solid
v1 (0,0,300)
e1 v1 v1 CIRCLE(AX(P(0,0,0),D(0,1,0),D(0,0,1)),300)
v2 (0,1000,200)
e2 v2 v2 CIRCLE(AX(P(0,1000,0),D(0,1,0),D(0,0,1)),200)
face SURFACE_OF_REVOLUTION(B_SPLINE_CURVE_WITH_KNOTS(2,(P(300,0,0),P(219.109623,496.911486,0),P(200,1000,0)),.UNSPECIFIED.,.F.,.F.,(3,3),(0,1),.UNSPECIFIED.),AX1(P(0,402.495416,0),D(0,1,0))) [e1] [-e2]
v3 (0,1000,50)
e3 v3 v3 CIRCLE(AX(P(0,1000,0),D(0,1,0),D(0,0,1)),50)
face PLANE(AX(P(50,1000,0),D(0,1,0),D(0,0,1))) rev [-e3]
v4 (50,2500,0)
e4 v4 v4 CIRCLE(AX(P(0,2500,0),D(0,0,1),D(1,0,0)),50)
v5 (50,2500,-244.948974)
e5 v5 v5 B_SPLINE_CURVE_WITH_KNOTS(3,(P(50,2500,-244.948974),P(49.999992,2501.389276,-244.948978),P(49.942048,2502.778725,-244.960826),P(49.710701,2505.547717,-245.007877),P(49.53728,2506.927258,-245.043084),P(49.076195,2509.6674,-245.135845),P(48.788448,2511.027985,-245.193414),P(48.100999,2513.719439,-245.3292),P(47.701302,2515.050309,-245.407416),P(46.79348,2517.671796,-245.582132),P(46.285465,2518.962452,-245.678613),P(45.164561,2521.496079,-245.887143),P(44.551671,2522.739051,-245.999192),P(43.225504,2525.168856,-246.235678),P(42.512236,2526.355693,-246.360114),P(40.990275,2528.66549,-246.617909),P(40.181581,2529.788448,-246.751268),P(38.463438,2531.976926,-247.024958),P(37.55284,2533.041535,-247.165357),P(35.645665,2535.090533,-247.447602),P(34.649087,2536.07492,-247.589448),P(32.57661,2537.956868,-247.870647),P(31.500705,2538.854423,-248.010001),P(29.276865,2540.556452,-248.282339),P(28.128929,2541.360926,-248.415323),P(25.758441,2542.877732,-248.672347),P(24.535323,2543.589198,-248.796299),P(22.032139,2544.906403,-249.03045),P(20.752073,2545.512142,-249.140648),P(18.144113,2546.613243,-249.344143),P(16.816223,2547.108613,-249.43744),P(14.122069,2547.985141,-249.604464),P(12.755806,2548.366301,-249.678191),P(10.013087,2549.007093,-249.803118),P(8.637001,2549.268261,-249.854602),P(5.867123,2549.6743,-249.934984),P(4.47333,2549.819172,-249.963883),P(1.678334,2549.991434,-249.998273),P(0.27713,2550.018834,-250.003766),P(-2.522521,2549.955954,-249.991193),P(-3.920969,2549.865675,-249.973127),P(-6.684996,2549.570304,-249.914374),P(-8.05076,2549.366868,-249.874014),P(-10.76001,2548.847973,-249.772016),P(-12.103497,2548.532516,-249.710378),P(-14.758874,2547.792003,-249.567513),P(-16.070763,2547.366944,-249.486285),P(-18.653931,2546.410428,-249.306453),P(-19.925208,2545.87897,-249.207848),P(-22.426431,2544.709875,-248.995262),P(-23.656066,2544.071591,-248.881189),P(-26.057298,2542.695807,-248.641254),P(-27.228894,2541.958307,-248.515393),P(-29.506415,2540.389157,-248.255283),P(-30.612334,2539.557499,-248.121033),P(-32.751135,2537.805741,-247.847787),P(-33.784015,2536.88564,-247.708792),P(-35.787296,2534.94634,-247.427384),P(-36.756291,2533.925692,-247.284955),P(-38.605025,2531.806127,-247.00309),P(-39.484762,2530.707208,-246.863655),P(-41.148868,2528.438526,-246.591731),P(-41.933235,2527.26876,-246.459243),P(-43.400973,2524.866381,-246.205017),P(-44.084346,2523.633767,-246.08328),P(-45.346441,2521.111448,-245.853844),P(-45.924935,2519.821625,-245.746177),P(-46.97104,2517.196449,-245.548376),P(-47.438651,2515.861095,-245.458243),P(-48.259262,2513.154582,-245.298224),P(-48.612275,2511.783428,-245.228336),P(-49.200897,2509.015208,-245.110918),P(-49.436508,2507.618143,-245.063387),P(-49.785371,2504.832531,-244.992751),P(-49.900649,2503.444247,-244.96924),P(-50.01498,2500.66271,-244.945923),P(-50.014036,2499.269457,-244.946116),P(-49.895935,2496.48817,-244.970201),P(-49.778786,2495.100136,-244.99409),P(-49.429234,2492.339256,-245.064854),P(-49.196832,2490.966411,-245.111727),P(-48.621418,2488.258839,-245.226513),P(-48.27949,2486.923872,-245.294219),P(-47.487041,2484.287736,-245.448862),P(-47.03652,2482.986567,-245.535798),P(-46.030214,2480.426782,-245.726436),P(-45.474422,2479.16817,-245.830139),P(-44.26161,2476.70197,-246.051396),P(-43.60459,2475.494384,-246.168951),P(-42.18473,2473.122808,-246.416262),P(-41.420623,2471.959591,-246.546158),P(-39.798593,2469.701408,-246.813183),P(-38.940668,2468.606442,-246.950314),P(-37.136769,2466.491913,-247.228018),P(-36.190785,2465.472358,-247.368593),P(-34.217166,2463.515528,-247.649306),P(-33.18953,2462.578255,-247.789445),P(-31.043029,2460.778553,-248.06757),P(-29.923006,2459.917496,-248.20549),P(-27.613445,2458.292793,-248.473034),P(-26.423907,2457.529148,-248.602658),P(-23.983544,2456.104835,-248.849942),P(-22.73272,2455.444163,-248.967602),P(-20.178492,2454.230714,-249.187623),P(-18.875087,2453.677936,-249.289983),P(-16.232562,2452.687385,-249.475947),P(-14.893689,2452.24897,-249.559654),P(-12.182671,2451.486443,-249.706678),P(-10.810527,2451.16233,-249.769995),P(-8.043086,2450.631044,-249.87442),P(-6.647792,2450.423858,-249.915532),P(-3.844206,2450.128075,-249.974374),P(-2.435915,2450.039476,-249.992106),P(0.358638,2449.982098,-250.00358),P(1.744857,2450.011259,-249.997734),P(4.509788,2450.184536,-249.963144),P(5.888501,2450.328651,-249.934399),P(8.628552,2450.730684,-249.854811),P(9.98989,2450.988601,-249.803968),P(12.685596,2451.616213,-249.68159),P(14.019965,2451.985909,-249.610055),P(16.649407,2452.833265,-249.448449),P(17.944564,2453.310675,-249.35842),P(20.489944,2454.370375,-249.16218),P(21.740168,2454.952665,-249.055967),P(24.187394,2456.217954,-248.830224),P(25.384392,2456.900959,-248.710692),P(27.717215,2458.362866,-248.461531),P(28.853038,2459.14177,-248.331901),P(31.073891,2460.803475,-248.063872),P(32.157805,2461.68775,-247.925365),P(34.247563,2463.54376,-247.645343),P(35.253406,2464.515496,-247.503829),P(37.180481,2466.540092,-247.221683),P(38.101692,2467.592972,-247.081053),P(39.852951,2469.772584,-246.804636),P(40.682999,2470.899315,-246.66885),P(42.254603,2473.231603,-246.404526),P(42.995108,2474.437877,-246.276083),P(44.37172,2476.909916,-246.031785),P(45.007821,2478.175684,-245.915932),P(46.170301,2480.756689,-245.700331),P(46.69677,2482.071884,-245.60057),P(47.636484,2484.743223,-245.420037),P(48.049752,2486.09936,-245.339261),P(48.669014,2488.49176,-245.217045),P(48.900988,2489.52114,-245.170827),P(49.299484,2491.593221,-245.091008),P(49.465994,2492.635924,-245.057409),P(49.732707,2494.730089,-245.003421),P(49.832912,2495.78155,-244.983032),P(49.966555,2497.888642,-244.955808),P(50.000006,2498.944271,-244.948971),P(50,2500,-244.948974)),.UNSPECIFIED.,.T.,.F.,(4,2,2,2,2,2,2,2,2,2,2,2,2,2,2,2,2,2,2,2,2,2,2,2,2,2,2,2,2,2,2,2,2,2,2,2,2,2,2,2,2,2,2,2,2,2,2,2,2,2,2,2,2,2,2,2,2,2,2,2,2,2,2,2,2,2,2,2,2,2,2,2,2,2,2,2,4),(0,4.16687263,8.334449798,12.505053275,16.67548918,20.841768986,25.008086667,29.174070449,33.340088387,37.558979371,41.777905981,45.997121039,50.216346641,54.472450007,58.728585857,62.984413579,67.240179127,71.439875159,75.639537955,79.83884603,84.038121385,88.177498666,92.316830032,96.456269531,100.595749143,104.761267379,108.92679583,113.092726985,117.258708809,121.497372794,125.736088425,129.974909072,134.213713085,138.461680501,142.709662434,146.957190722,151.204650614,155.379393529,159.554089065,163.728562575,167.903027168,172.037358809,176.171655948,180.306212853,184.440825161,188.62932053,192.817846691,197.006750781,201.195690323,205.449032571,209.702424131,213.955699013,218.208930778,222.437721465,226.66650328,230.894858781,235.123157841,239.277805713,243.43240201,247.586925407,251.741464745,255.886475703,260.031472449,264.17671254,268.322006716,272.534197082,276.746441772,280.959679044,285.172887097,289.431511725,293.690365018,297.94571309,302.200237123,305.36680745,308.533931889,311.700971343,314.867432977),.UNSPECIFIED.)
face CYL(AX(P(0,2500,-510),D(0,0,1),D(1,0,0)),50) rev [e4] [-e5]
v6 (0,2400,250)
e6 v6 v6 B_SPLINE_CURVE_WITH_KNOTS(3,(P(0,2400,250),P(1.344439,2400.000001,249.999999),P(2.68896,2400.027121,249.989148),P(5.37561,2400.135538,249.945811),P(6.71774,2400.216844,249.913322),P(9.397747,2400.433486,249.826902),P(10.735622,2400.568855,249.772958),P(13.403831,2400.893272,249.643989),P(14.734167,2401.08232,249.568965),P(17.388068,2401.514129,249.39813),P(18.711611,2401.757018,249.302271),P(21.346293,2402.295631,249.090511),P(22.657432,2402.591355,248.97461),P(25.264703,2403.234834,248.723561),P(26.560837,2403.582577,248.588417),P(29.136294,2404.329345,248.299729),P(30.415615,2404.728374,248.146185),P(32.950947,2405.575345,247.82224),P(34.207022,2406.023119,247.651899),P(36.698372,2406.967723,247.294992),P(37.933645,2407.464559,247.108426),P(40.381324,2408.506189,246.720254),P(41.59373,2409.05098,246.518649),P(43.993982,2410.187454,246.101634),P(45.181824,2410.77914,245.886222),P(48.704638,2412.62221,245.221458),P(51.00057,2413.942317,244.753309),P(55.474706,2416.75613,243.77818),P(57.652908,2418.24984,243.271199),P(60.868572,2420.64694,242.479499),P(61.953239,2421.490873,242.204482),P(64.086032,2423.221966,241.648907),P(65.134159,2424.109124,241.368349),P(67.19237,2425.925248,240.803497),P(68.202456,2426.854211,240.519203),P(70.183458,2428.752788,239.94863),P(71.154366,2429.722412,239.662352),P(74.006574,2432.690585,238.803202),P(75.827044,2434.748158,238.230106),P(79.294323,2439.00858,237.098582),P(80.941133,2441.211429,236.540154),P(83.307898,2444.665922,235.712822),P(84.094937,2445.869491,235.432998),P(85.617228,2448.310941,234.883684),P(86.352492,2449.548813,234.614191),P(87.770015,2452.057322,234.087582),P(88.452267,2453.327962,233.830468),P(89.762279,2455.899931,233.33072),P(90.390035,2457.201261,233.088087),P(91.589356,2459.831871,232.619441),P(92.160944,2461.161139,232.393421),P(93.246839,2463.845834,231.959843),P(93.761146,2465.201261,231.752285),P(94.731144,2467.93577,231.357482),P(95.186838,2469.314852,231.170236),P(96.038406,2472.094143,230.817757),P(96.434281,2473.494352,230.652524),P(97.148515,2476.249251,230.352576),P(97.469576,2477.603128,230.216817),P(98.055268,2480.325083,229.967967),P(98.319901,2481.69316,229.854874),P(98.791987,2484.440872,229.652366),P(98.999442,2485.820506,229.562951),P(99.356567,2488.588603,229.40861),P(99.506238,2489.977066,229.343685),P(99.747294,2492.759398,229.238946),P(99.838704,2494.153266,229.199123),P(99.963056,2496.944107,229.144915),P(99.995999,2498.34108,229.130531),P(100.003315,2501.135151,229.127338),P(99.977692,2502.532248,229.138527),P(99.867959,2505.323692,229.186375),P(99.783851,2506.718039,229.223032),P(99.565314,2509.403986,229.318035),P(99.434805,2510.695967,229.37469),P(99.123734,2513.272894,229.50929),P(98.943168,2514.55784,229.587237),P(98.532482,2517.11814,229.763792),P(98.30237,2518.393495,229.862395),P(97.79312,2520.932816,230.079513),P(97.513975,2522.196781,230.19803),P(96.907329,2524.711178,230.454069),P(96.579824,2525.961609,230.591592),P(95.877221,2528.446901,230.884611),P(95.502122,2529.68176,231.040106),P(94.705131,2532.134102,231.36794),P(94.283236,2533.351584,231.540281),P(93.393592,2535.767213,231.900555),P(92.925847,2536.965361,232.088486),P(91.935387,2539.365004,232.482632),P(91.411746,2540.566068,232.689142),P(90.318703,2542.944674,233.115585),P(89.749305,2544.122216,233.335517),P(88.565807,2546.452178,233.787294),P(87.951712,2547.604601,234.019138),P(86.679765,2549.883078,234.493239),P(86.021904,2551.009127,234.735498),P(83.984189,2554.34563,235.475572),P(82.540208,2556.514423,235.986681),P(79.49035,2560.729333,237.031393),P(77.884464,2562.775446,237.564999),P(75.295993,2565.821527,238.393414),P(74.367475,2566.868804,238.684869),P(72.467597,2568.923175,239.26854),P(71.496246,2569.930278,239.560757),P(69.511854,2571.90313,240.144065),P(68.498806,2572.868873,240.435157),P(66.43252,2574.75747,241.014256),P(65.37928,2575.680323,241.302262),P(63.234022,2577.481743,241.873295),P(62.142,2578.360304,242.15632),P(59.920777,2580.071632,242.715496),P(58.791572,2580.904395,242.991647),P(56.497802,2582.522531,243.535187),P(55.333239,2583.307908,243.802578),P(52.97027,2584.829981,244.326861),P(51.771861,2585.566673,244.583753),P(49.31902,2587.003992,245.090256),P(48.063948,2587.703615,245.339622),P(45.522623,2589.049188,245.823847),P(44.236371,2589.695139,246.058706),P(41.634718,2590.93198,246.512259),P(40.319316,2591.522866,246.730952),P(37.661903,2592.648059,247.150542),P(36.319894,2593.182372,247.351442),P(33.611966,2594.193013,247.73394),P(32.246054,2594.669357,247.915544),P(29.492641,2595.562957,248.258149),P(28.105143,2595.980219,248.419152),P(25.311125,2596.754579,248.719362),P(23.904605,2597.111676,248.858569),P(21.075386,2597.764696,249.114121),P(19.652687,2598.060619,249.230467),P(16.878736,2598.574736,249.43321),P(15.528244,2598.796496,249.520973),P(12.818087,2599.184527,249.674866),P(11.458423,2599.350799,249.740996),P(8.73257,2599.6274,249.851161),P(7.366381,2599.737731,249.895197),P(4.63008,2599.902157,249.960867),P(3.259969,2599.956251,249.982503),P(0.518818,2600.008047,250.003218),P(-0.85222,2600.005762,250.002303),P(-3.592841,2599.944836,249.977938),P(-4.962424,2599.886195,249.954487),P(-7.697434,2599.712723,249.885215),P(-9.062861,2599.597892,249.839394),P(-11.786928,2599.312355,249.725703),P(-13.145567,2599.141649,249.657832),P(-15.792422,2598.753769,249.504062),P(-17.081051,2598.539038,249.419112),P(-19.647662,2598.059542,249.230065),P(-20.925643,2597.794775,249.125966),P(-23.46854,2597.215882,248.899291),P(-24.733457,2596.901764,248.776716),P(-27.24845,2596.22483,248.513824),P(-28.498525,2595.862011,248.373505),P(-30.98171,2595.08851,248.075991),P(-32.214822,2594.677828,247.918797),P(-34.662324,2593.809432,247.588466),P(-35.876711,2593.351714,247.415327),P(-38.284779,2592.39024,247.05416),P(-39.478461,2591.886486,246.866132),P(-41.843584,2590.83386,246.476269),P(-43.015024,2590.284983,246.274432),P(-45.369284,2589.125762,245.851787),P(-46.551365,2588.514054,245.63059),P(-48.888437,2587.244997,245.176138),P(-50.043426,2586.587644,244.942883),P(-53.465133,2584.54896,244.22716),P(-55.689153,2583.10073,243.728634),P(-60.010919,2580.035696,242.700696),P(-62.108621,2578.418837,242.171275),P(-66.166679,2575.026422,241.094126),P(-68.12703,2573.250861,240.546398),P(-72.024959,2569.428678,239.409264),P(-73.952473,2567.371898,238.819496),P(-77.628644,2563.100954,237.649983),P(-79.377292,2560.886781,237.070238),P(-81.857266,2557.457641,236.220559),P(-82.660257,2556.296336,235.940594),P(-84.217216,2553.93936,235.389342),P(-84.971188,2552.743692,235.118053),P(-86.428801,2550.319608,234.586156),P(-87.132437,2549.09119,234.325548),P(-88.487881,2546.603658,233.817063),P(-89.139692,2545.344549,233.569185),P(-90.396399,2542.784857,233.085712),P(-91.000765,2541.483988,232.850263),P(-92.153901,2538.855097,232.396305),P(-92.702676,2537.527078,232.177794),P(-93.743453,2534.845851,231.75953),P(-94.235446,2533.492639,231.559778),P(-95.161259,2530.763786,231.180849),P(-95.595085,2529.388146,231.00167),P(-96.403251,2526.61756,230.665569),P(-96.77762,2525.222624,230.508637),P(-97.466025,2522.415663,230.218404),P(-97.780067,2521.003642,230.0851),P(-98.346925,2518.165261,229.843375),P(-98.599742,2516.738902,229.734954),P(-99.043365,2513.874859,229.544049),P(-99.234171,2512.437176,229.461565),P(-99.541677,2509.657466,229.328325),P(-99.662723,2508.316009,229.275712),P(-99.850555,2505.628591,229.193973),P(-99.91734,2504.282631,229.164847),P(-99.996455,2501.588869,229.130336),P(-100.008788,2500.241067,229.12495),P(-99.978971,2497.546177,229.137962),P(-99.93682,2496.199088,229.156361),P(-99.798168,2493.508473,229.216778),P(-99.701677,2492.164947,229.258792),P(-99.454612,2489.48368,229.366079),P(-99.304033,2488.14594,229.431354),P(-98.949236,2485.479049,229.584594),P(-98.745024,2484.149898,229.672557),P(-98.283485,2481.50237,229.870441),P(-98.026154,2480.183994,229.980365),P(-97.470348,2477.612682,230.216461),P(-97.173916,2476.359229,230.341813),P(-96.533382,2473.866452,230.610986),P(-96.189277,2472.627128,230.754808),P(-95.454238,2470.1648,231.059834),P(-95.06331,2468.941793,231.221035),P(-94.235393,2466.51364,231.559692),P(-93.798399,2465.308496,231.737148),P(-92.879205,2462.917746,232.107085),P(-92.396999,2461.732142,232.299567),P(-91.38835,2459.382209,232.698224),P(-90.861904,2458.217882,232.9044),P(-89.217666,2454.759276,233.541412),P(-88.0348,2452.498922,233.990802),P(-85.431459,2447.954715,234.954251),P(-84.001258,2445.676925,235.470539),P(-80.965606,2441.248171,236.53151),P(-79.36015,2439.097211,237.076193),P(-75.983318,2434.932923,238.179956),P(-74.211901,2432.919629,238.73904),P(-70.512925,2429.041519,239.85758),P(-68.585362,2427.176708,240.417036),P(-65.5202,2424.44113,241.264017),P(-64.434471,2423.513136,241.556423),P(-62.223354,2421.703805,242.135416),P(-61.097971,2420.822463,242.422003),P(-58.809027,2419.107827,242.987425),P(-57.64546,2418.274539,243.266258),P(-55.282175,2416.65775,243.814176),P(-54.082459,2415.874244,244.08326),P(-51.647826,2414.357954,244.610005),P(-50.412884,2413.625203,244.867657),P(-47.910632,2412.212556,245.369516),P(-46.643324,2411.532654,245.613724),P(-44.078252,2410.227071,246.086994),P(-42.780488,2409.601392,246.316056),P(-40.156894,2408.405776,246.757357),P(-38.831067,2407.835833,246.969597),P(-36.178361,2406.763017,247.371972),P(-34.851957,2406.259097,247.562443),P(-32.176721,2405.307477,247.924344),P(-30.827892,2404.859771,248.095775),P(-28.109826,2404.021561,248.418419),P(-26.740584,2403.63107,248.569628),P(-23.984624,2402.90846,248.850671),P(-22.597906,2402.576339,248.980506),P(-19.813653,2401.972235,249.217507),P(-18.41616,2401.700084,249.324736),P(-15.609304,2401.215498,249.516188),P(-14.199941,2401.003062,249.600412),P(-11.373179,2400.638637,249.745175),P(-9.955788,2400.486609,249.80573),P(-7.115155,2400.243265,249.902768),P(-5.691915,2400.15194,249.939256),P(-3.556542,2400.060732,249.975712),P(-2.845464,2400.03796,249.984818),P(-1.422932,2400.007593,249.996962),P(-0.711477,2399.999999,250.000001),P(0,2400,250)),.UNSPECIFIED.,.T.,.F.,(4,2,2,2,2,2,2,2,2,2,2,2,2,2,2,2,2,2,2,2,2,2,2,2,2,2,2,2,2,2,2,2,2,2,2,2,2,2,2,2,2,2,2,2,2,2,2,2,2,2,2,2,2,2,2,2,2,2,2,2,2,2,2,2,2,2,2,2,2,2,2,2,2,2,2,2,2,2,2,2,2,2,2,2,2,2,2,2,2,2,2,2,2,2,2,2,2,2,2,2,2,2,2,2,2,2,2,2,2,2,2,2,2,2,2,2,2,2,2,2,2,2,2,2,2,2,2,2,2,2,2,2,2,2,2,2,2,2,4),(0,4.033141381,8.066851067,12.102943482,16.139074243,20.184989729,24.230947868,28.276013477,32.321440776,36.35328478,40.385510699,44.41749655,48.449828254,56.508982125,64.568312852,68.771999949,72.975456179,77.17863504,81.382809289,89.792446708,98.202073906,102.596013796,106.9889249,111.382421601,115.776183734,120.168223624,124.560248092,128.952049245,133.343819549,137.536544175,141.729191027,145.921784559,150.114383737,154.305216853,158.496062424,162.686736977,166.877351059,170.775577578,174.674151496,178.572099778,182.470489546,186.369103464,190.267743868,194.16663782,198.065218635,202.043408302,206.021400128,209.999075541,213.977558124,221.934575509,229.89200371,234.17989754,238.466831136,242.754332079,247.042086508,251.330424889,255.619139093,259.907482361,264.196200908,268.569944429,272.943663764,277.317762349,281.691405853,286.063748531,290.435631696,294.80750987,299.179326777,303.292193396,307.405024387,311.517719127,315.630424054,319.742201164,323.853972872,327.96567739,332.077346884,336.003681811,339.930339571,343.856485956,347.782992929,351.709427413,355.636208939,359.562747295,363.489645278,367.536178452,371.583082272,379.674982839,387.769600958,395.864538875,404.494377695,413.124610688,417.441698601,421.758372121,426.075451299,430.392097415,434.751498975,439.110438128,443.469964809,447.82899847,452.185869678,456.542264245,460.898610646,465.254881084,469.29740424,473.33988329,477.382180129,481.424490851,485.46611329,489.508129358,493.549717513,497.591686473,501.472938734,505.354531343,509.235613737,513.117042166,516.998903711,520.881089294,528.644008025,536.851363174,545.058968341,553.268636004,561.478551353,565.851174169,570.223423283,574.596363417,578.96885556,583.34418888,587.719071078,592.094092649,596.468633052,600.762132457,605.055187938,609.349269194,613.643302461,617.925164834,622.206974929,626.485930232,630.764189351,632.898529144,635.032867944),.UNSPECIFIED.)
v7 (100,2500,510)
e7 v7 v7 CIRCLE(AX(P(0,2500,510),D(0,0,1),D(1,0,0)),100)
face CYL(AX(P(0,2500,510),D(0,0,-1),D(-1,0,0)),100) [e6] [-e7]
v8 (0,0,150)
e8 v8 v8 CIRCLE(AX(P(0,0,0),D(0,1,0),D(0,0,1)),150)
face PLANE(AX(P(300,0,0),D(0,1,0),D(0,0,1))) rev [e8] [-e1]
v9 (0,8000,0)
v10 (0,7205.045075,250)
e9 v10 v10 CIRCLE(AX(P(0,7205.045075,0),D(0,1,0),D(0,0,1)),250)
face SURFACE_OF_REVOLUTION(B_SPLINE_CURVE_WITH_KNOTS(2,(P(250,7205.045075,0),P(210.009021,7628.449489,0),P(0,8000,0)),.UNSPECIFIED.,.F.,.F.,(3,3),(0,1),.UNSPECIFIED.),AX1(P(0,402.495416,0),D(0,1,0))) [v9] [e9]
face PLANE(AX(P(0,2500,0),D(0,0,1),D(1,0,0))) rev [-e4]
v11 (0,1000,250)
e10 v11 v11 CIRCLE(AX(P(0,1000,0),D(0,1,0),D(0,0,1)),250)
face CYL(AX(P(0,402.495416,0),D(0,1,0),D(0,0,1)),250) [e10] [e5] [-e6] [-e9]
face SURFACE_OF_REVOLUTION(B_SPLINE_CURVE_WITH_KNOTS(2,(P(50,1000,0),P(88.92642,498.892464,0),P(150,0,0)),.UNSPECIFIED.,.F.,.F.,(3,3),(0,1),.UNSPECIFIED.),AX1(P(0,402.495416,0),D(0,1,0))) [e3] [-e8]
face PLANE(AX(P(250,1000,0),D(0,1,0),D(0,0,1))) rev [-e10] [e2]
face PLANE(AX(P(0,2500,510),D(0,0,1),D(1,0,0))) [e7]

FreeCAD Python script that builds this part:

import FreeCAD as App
import Part
import Sketcher

doc = App.newDocument("Part")
body = doc.addObject("PartDesign::Body", "Body")

# Sketch on XY plane
sketch1 = body.newObject("Sketcher::SketchObject", "Sketch")
sketch1.AttachmentSupport = (doc.getObject("XY_Plane"), [""])
sketch1.MapMode = "FlatFace"
sketch1.addGeometry([
    Part.LineSegment(App.Vector(0, 8000, 0), App.Vector(0, 1000, 0)),  # 0
    Part.LineSegment(App.Vector(0, 1000, 0), App.Vector(50, 1000, 0)),  # 1
    Part.BSplineCurve([App.Vector(50, 1000, 0), App.Vector(88.92642, 498.892464, 0), App.Vector(150, 0, 0)], [3, 3], [0, 1], False, 2, [1, 1, 1], False),  # 2
    Part.LineSegment(App.Vector(150, 0, 0), App.Vector(300, 0, 0)),  # 3
    Part.BSplineCurve([App.Vector(200, 1000, 0), App.Vector(219.109623, 496.911486, 0), App.Vector(300, 0, 0)], [3, 3], [0, 1], False, 2, [1, 1, 1], False),  # 4
    Part.LineSegment(App.Vector(200, 1000, 0), App.Vector(250, 1000, 0)),  # 5
    Part.LineSegment(App.Vector(250, 1000, 0), App.Vector(250, 7205.045075, 0)),  # 6
    Part.BSplineCurve([App.Vector(0, 8000, 0), App.Vector(210.009021, 7628.449489, 0), App.Vector(250, 7205.045075, 0)], [3, 3], [0, 1], False, 2, [1, 1, 1], False),  # 7
], False)
sketch1.addConstraint([
    Sketcher.Constraint("Block", 2),
    Sketcher.Constraint("Block", 4),
    Sketcher.Constraint("Block", 7),
    Sketcher.Constraint("Coincident", 0, 2, 1, 1),
    Sketcher.Constraint("Coincident", 1, 2, 2, 1),
    Sketcher.Constraint("Coincident", 2, 2, 3, 1),
    Sketcher.Constraint("Coincident", 3, 2, 4, 2),
    Sketcher.Constraint("Coincident", 4, 1, 5, 1),
    Sketcher.Constraint("Coincident", 5, 2, 6, 1),
    Sketcher.Constraint("Coincident", 6, 2, 7, 2),
    Sketcher.Constraint("Coincident", 7, 1, 0, 1),
    Sketcher.Constraint("Vertical", 0),
    Sketcher.Constraint("Horizontal", 1),
    Sketcher.Constraint("Horizontal", 5),
    Sketcher.Constraint("Vertical", 6),
])
revolution = body.newObject("PartDesign::Revolution", "Revolution")
revolution.Profile = sketch1
revolution.ReferenceAxis = (sketch1, ["V_Axis"])
revolution.Angle = 360

# Sketch on XY plane
sketch2 = body.newObject("Sketcher::SketchObject", "Sketch001")
sketch2.AttachmentSupport = (doc.getObject("XY_Plane"), [""])
sketch2.MapMode = "FlatFace"
sketch2.addGeometry(Part.Circle(App.Vector(0, 2500, 0), App.Vector(0, 0, 1), 100), False)
sketch2.addConstraint([
    Sketcher.Constraint("PointOnObject", 0, 3, -2),
    Sketcher.Constraint("Diameter", 0, 200.0),
    Sketcher.Constraint("DistanceY", -1, 1, 0, 3, 2500.0),
])
pad1 = body.newObject("PartDesign::Pad", "Pad")
pad1.Profile = sketch2
pad1.Length = 510

# Sketch on XY plane
sketch3 = body.newObject("Sketcher::SketchObject", "Sketch002")
sketch3.AttachmentSupport = (doc.getObject("XY_Plane"), [""])
sketch3.MapMode = "FlatFace"
sketch3.addGeometry(Part.Circle(App.Vector(0, 2500, 0), App.Vector(0, 0, 1), 50), False)
sketch3.addConstraint([
    Sketcher.Constraint("PointOnObject", 0, 3, -2),
    Sketcher.Constraint("Diameter", 0, 100.0),
    Sketcher.Constraint("DistanceY", -1, 1, 0, 3, 2500.0),
])
pocket1 = body.newObject("PartDesign::Pocket", "Pocket")
pocket1.Profile = sketch3
pocket1.Length = 510

doc.recompute()
